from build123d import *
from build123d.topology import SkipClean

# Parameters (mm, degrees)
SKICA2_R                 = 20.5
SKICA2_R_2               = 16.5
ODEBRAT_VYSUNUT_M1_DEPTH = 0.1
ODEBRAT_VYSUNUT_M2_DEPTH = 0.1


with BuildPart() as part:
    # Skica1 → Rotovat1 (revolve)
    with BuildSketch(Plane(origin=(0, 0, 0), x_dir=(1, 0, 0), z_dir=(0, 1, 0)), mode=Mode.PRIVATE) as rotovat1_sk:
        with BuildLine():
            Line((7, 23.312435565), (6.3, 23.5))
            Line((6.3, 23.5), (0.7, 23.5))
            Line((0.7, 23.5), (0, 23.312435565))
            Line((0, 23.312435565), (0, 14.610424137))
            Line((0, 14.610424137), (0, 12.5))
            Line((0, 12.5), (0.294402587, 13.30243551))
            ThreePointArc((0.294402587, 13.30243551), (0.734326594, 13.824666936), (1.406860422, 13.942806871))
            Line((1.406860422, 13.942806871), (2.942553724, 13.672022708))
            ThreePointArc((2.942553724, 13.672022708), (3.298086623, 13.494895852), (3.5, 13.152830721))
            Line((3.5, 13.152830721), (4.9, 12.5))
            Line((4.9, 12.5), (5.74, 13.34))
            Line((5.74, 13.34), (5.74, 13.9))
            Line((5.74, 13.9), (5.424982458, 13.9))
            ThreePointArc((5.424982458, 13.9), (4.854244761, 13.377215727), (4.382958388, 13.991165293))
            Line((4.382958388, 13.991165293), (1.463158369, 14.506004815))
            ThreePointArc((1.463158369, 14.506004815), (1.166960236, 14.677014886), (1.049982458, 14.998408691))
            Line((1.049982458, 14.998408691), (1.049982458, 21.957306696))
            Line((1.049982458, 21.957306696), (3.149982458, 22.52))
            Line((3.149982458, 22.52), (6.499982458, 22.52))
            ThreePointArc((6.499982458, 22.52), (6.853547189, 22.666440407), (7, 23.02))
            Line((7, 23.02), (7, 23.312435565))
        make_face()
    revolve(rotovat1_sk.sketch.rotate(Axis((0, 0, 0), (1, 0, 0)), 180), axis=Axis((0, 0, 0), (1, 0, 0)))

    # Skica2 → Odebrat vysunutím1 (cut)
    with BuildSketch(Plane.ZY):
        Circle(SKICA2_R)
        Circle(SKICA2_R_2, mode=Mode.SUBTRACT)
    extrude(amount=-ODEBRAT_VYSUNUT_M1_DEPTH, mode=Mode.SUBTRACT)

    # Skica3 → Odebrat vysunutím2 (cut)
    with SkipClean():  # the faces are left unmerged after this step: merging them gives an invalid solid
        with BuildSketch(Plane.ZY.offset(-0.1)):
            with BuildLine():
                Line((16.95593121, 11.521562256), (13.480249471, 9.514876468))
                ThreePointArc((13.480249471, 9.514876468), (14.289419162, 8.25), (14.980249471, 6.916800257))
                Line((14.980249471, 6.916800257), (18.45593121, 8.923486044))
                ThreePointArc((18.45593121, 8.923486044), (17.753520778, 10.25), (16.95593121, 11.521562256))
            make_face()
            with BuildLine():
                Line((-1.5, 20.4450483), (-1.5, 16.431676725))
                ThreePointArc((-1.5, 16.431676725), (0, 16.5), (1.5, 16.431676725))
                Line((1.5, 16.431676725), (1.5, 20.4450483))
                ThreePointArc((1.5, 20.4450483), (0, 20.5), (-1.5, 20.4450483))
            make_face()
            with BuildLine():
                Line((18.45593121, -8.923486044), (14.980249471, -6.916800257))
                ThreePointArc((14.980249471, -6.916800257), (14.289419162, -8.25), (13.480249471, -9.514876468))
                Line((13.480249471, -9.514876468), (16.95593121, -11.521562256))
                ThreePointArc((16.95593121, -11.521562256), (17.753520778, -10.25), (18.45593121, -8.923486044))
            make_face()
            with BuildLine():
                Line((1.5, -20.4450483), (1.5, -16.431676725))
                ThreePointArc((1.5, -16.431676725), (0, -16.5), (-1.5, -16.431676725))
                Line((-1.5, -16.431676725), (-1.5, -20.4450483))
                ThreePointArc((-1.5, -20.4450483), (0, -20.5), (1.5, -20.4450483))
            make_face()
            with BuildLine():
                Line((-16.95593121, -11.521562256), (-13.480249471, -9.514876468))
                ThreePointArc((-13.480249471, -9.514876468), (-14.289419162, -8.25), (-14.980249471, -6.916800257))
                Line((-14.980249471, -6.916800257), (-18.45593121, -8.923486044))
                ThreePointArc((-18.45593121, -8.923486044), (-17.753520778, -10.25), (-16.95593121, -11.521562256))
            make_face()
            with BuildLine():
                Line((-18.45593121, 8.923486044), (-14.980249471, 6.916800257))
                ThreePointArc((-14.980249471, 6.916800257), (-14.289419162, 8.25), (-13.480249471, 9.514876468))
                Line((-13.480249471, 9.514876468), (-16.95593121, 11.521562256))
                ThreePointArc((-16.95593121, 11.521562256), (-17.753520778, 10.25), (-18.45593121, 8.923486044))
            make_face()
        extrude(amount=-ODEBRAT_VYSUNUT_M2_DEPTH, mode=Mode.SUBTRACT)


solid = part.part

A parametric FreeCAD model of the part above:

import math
import FreeCAD as App
import Part
import Sketcher
from FreeCAD import Vector
Q = App.Units.Quantity

doc = App.newDocument("Part")
body = doc.addObject("PartDesign::Body", "Body")

# Sketch on XZ plane
sketch1 = doc.addObject("Sketcher::SketchObject", "Sketch")
body.addObject(sketch1)
sketch1.AttachmentSupport = (doc.XZ_Plane, [""])
sketch1.MapMode = "FlatFace"
sketch1.addGeometry([
    Part.LineSegment(Vector(7, -23.312436, 0), Vector(6.3, -23.5, 0)),  # 0
    Part.LineSegment(Vector(6.3, -23.5, 0), Vector(0.7, -23.5, 0)),  # 1
    Part.LineSegment(Vector(0.7, -23.5, 0), Vector(0, -23.312436, 0)),  # 2
    Part.LineSegment(Vector(0, -23.312436, 0), Vector(0, -12.5, 0)),  # 3
    Part.LineSegment(Vector(0, -12.5, 0), Vector(0.294403, -13.302436, 0)),  # 4
    Part.ArcOfCircle(Part.Circle(Vector(1.233212, -12.957999, 0), Vector(0, 0, 1), 1), math.radians(-159.852605), math.radians(-80)),  # 5
    Part.LineSegment(Vector(1.40686, -13.942807, 0), Vector(2.942554, -13.672023, 0)),  # 6
    Part.ArcOfCircle(Part.Circle(Vector(2.821, -12.982657, 0), Vector(0, 0, 1), 0.7), math.radians(-80), math.radians(-14.069868)),  # 7
    Part.LineSegment(Vector(3.5, -13.152831, 0), Vector(4.9, -12.5, 0)),  # 8
    Part.LineSegment(Vector(4.9, -12.5, 0), Vector(5.74, -13.34, 0)),  # 9
    Part.LineSegment(Vector(5.74, -13.34, 0), Vector(5.74, -13.9, 0)),  # 10
    Part.LineSegment(Vector(5.74, -13.9, 0), Vector(5.424982, -13.9, 0)),  # 11
    Part.ArcOfCircle(Part.Circle(Vector(4.9, -13.900201, 0), Vector(0, 0, 1), 0.524982), math.radians(0.021883), math.radians(189.978117)),  # 12
    Part.LineSegment(Vector(4.382958, -13.991165, 0), Vector(1.463158, -14.506005, 0)),  # 13
    Part.ArcOfCircle(Part.Circle(Vector(1.549982, -14.998409, 0), Vector(0, 0, 1), 0.5), math.radians(100), math.radians(180)),  # 14
    Part.LineSegment(Vector(1.049982, -14.998409, 0), Vector(1.049982, -21.957307, 0)),  # 15
    Part.LineSegment(Vector(1.049982, -21.957307, 0), Vector(3.149982, -22.52, 0)),  # 16
    Part.LineSegment(Vector(3.149982, -22.52, 0), Vector(6.499982, -22.52, 0)),  # 17
    Part.ArcOfCircle(Part.Circle(Vector(6.5, -23.02, 0), Vector(0, 0, 1), 0.5), math.radians(0), math.radians(90.00201)),  # 18
    Part.LineSegment(Vector(7, -23.02, 0), Vector(7, -23.312436, 0)),  # 19
], False)
sketch1.addConstraint([
    Sketcher.Constraint("Coincident", 0, 2, 1, 1),
    Sketcher.Constraint("Coincident", 1, 2, 2, 1),
    Sketcher.Constraint("Coincident", 2, 2, 3, 1),
    Sketcher.Constraint("Coincident", 3, 2, 4, 1),
    Sketcher.Constraint("Coincident", 4, 2, 5, 1),
    Sketcher.Constraint("Coincident", 5, 2, 6, 1),
    Sketcher.Constraint("Coincident", 6, 2, 7, 1),
    Sketcher.Constraint("Coincident", 7, 2, 8, 1),
    Sketcher.Constraint("Coincident", 8, 2, 9, 1),
    Sketcher.Constraint("Coincident", 9, 2, 10, 1),
    Sketcher.Constraint("Coincident", 10, 2, 11, 1),
    Sketcher.Constraint("Coincident", 11, 2, 12, 1),
    Sketcher.Constraint("Coincident", 12, 2, 13, 1),
    Sketcher.Constraint("Coincident", 13, 2, 14, 1),
    Sketcher.Constraint("Coincident", 14, 2, 15, 1),
    Sketcher.Constraint("Coincident", 15, 2, 16, 1),
    Sketcher.Constraint("Coincident", 16, 2, 17, 1),
    Sketcher.Constraint("Coincident", 17, 2, 18, 2),
    Sketcher.Constraint("Coincident", 18, 1, 19, 1),
    Sketcher.Constraint("Coincident", 19, 2, 0, 1),
    Sketcher.Constraint("Horizontal", 1),
    Sketcher.Constraint("Vertical", 3),
    Sketcher.Constraint("Vertical", 10),
    Sketcher.Constraint("Horizontal", 11),
    Sketcher.Constraint("Vertical", 15),
    Sketcher.Constraint("Horizontal", 17),
    Sketcher.Constraint("Vertical", 19),
    Sketcher.Constraint("PointOnObject", 2, 2, -2),
    Sketcher.Constraint("Radius", 5, Q("1 mm")),
    Sketcher.Constraint("Radius", 7, Q("0.7 mm")),
    Sketcher.Constraint("Radius", 14, Q("0.5 mm")),
    Sketcher.Constraint("Radius", 18, Q("0.5 mm")),
    Sketcher.Constraint("DistanceX", 1, 2, 1, 1, Q("5.6 mm")),
    Sketcher.Constraint("DistanceX", -1, 1, 18, 1, Q("7 mm")),
    Sketcher.Constraint("DistanceX", 17, 1, 17, 2, Q("3.35 mm")),
    Sketcher.Constraint("DistanceY", 10, 2, 10, 1, Q("0.56 mm")),
    Sketcher.Constraint("DistanceX", -1, 1, 12, 3, Q("4.9 mm")),
    Sketcher.Constraint("DistanceX", -1, 1, 0, 2, Q("6.3 mm")),
    Sketcher.Constraint("DistanceY", 0, 2, -1, 1, Q("23.5 mm")),
    Sketcher.Constraint("DistanceY", 3, 2, -1, 1, Q("12.5 mm")),
    Sketcher.Constraint("DistanceX", -1, 1, 7, 2, Q("3.5 mm")),
    Sketcher.Constraint("DistanceX", -1, 1, 8, 2, Q("4.9 mm")),
    Sketcher.Constraint("DistanceY", 8, 2, -1, 1, Q("12.5 mm")),
    Sketcher.Constraint("DistanceY", 10, 2, -1, 1, Q("13.9 mm")),
    Sketcher.Constraint("DistanceX", 15, 2, 16, 2, Q("2.1 mm")),
    Sketcher.Constraint("DistanceY", 18, 1, 17, 2, Q("0.5 mm")),
    Sketcher.Constraint("DistanceY", 18, 3, -1, 1, Q("23.02 mm")),
    Sketcher.Constraint("DistanceX", -1, 1, 9, 2, Q("5.74 mm")),
    Sketcher.Constraint("DistanceY", 15, 2, 15, 1, Q("6.958898 mm")),
    Sketcher.Constraint("DistanceY", 5, 3, -1, 1, Q("12.957999 mm")),
    Sketcher.Constraint("DistanceX", -1, 1, 7, 3, Q("2.821 mm")),
    Sketcher.Constraint("Radius", 12, Q("0.524982 mm")),
    Sketcher.Constraint("DistanceY", 12, 3, -1, 1, Q("13.900201 mm")),
    Sketcher.Constraint("DistanceY", 14, 3, 5, 2, Q("1.055602 mm")),
    Sketcher.Constraint("DistanceY", 14, 2, 5, 2, Q("1.055602 mm")),
    Sketcher.Constraint("Distance", 8, Q("1.544729 mm")),
    Sketcher.Constraint("Distance", 16, Q("2.17408 mm")),
    Sketcher.Constraint("DistanceY", 3, 1, 3, 2, Q("10.812436 mm")),
    Sketcher.Constraint("DistanceY", 19, 2, 19, 1, Q("0.292436 mm")),
    Sketcher.Constraint("DistanceX", -1, 1, 5, 2, Q("1.40686 mm")),
    Sketcher.Constraint("DistanceX", -1, 1, 12, 2, Q("4.382958 mm")),
    Sketcher.Constraint("DistanceX", -1, 1, 13, 2, Q("1.463158 mm")),
    Sketcher.Constraint("DistanceX", 5, 3, 14, 3, Q("0.31677 mm")),
    Sketcher.Constraint("DistanceX", 4, 2, 5, 3, Q("0.93881 mm")),
    Sketcher.Constraint("DistanceX", 5, 3, 6, 2, Q("1.709341 mm")),
])
revolution = doc.addObject("PartDesign::Revolution", "Revolution")
body.addObject(revolution)
revolution.Profile = sketch1
revolution.ReferenceAxis = (sketch1, ["H_Axis"])
revolution.Angle = 360

# Sketch on YZ plane
sketch2 = doc.addObject("Sketcher::SketchObject", "Sketch001")
body.addObject(sketch2)
sketch2.AttachmentSupport = (doc.YZ_Plane, [""])
sketch2.MapMode = "FlatFace"
sketch2.addGeometry([
    Part.Circle(Vector(0, 0, 0), Vector(0, 0, 1), 20.5),
    Part.Circle(Vector(0, 0, 0), Vector(0, 0, 1), 16.5),
], False)
sketch2.addConstraint([
    Sketcher.Constraint("Coincident", 0, 3, -1, 1),
    Sketcher.Constraint("Coincident", 1, 3, -1, 1),
    Sketcher.Constraint("Diameter", 0, Q("41 mm")),
    Sketcher.Constraint("Diameter", 1, Q("33 mm")),
])
pocket1 = doc.addObject("PartDesign::Pocket", "Pocket")
body.addObject(pocket1)
pocket1.Profile = sketch2
pocket1.Length = 0.1
pocket1.Reversed = True

# Sketch on YZ plane
sketch3 = doc.addObject("Sketcher::SketchObject", "Sketch002")
body.addObject(sketch3)
sketch3.AttachmentSupport = (doc.YZ_Plane, [""])
sketch3.MapMode = "FlatFace"
sketch3.AttachmentOffset = App.Placement(Vector(0, 0, 0.1), App.Rotation())
sketch3.addGeometry([
    Part.LineSegment(Vector(11.521562, 16.955931, 0), Vector(9.514876, 13.480249, 0)),  # 0
    Part.ArcOfCircle(Part.Circle(Vector(0, 0, 0), Vector(0, 0, 1), 16.5), math.radians(54.784091), math.radians(65.215909)),  # 1
    Part.LineSegment(Vector(6.9168, 14.980249, 0), Vector(8.923486, 18.455931, 0)),  # 2
    Part.ArcOfCircle(Part.Circle(Vector(0, 0, 0), Vector(0, 0, 1), 20.5), math.radians(55.803876), math.radians(64.196124)),  # 3
    Part.LineSegment(Vector(20.445048, -1.5, 0), Vector(16.431677, -1.5, 0)),  # 4
    Part.ArcOfCircle(Part.Circle(Vector(0, 0, 0), Vector(0, 0, 1), 16.5), math.radians(-5.215909), math.radians(5.215909)),  # 5
    Part.LineSegment(Vector(16.431677, 1.5, 0), Vector(20.445048, 1.5, 0)),  # 6
    Part.ArcOfCircle(Part.Circle(Vector(0, 0, 0), Vector(0, 0, 1), 20.5), math.radians(-4.196124), math.radians(4.196124)),  # 7
    Part.LineSegment(Vector(-8.923486, 18.455931, 0), Vector(-6.9168, 14.980249, 0)),  # 8
    Part.ArcOfCircle(Part.Circle(Vector(0, 0, 0), Vector(0, 0, 1), 16.5), math.radians(114.784091), math.radians(125.215909)),  # 9
    Part.LineSegment(Vector(-9.514876, 13.480249, 0), Vector(-11.521562, 16.955931, 0)),  # 10
    Part.ArcOfCircle(Part.Circle(Vector(0, 0, 0), Vector(0, 0, 1), 20.5), math.radians(115.803876), math.radians(124.196124)),  # 11
    Part.LineSegment(Vector(-20.445048, 1.5, 0), Vector(-16.431677, 1.5, 0)),  # 12
    Part.ArcOfCircle(Part.Circle(Vector(0, 0, 0), Vector(0, 0, 1), 16.5), math.radians(174.784091), math.radians(185.215909)),  # 13
    Part.LineSegment(Vector(-16.431677, -1.5, 0), Vector(-20.445048, -1.5, 0)),  # 14
    Part.ArcOfCircle(Part.Circle(Vector(0, 0, 0), Vector(0, 0, 1), 20.5), math.radians(175.803876), math.radians(184.196124)),  # 15
    Part.LineSegment(Vector(-11.521562, -16.955931, 0), Vector(-9.514876, -13.480249, 0)),  # 16
    Part.ArcOfCircle(Part.Circle(Vector(0, 0, 0), Vector(0, 0, 1), 16.5), math.radians(-125.215909), math.radians(-114.784091)),  # 17
    Part.LineSegment(Vector(-6.9168, -14.980249, 0), Vector(-8.923486, -18.455931, 0)),  # 18
    Part.ArcOfCircle(Part.Circle(Vector(0, 0, 0), Vector(0, 0, 1), 20.5), math.radians(-124.196124), math.radians(-115.803876)),  # 19
    Part.LineSegment(Vector(8.923486, -18.455931, 0), Vector(6.9168, -14.980249, 0)),  # 20
    Part.ArcOfCircle(Part.Circle(Vector(0, 0, 0), Vector(0, 0, 1), 16.5), math.radians(-65.215909), math.radians(-54.784091)),  # 21
    Part.LineSegment(Vector(9.514876, -13.480249, 0), Vector(11.521562, -16.955931, 0)),  # 22
    Part.ArcOfCircle(Part.Circle(Vector(0, 0, 0), Vector(0, 0, 1), 20.5), math.radians(-64.196124), math.radians(-55.803876)),  # 23
], False)
sketch3.addConstraint([
    Sketcher.Constraint("Coincident", 0, 2, 1, 1),
    Sketcher.Constraint("Coincident", 1, 2, 2, 1),
    Sketcher.Constraint("Coincident", 2, 2, 3, 2),
    Sketcher.Constraint("Coincident", 3, 1, 0, 1),
    Sketcher.Constraint("Coincident", 4, 2, 5, 1),
    Sketcher.Constraint("Coincident", 5, 2, 6, 1),
    Sketcher.Constraint("Coincident", 6, 2, 7, 2),
    Sketcher.Constraint("Coincident", 7, 1, 4, 1),
    Sketcher.Constraint("Coincident", 8, 2, 9, 1),
    Sketcher.Constraint("Coincident", 9, 2, 10, 1),
    Sketcher.Constraint("Coincident", 10, 2, 11, 2),
    Sketcher.Constraint("Coincident", 11, 1, 8, 1),
    Sketcher.Constraint("Coincident", 12, 2, 13, 1),
    Sketcher.Constraint("Coincident", 13, 2, 14, 1),
    Sketcher.Constraint("Coincident", 14, 2, 15, 2),
    Sketcher.Constraint("Coincident", 15, 1, 12, 1),
    Sketcher.Constraint("Coincident", 16, 2, 17, 1),
    Sketcher.Constraint("Coincident", 17, 2, 18, 1),
    Sketcher.Constraint("Coincident", 18, 2, 19, 2),
    Sketcher.Constraint("Coincident", 19, 1, 16, 1),
    Sketcher.Constraint("Coincident", 20, 2, 21, 1),
    Sketcher.Constraint("Coincident", 21, 2, 22, 1),
    Sketcher.Constraint("Coincident", 22, 2, 23, 2),
    Sketcher.Constraint("Coincident", 23, 1, 20, 1),
    Sketcher.Constraint("Horizontal", 4),
    Sketcher.Constraint("Horizontal", 6),
    Sketcher.Constraint("Horizontal", 12),
    Sketcher.Constraint("Horizontal", 14),
    Sketcher.Constraint("Coincident", 1, 3, -1, 1),
    Sketcher.Constraint("Coincident", 3, 3, -1, 1),
    Sketcher.Constraint("Coincident", 5, 3, -1, 1),
    Sketcher.Constraint("Coincident", 7, 3, -1, 1),
    Sketcher.Constraint("Coincident", 9, 3, -1, 1),
    Sketcher.Constraint("Coincident", 11, 3, -1, 1),
    Sketcher.Constraint("Coincident", 13, 3, -1, 1),
    Sketcher.Constraint("Coincident", 15, 3, -1, 1),
    Sketcher.Constraint("Coincident", 17, 3, -1, 1),
    Sketcher.Constraint("Coincident", 19, 3, -1, 1),
    Sketcher.Constraint("Coincident", 21, 3, -1, 1),
    Sketcher.Constraint("Coincident", 23, 3, -1, 1),
    Sketcher.Constraint("Equal", 1, 5),
    Sketcher.Constraint("Equal", 3, 7),
    Sketcher.Constraint("Equal", 5, 9),
    Sketcher.Constraint("Equal", 7, 11),
    Sketcher.Constraint("Equal", 9, 13),
    Sketcher.Constraint("Equal", 11, 15),
    Sketcher.Constraint("Equal", 13, 17),
    Sketcher.Constraint("Equal", 15, 19),
    Sketcher.Constraint("Equal", 17, 21),
    Sketcher.Constraint("Equal", 19, 23),
    Sketcher.Constraint("Parallel", 0, 2),
    Sketcher.Constraint("Parallel", 8, 10),
    Sketcher.Constraint("Parallel", 2, 16),
    Sketcher.Constraint("Parallel", 16, 18),
    Sketcher.Constraint("Parallel", 10, 20),
    Sketcher.Constraint("Parallel", 20, 22),
    Sketcher.Constraint("Horizontal", 1, 2, 8, 2),
    Sketcher.Constraint("Horizontal", 0, 2, 9, 2),
    Sketcher.Constraint("Horizontal", 3, 1, 10, 2),
    Sketcher.Constraint("Horizontal", 6, 2, 12, 2),
    Sketcher.Constraint("Horizontal", 7, 1, 13, 2),
    Sketcher.Constraint("Horizontal", 17, 2, 20, 2),
    Sketcher.Constraint("Horizontal", 16, 2, 21, 2),
    Sketcher.Constraint("Vertical", 4, 2, 5, 2),
    Sketcher.Constraint("Vertical", 9, 2, 16, 2),
    Sketcher.Constraint("Vertical", 8, 2, 17, 2),
    Sketcher.Constraint("Equal", 0, 2),
    Sketcher.Constraint("Radius", 1, Q("16.5 mm")),
    Sketcher.Constraint("Radius", 3, Q("20.5 mm")),
    Sketcher.Constraint("Angle", 0, Q("-120 deg")),
    Sketcher.Constraint("DistanceY", 4, 2, 5, 2, Q("3 mm")),
    Sketcher.Constraint("DistanceY", 0, 2, 1, 2, Q("1.5 mm")),
])
pocket2 = doc.addObject("PartDesign::Pocket", "Pocket001")
body.addObject(pocket2)
pocket2.Profile = sketch3
pocket2.Length = 0.1
pocket2.Reversed = True

doc.recompute()
